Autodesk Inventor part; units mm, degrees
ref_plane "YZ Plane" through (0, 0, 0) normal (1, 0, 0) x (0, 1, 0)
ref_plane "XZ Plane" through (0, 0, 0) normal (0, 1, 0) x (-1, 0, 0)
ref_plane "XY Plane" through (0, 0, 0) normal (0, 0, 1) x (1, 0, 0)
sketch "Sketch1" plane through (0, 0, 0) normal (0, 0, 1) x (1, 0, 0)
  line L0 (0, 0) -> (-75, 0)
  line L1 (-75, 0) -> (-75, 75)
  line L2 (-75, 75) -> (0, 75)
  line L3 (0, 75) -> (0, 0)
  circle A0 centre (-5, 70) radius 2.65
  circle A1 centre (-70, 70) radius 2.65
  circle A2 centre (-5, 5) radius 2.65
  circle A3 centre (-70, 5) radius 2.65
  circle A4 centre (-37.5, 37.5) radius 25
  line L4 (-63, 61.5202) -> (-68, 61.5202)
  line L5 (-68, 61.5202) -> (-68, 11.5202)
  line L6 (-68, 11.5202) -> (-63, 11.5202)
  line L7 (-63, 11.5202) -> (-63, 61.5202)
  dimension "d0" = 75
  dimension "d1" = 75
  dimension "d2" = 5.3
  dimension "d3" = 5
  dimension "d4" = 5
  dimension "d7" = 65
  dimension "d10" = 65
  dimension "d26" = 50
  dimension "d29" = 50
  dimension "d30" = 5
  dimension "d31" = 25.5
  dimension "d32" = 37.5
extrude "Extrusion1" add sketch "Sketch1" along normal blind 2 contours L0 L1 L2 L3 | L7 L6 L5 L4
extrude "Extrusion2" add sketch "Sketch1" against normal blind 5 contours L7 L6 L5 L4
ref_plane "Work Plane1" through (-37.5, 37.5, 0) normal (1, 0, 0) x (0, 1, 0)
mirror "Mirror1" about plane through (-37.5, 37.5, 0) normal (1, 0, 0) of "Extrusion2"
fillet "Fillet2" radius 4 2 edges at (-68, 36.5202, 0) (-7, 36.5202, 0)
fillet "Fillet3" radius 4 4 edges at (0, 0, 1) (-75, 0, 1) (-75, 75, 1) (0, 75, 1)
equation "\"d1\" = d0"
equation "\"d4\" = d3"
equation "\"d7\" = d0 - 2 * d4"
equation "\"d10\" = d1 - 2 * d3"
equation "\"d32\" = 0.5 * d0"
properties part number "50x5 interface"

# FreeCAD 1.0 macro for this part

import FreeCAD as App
import Part
import Sketcher


def edges_at(feature, points):
    """Names of the edges that pass closest to the given points."""
    edges = feature.Shape.Edges
    near = lambda p: min(range(len(edges)), key=lambda i: edges[i].distToShape(Part.Vertex(*p))[0])
    return sorted({f"Edge{near(p) + 1}" for p in points})

doc = App.newDocument("Part")
body = doc.addObject("PartDesign::Body", "Body")

sketch1 = body.newObject("Sketcher::SketchObject", "Sketch")
sketch1.AttachmentSupport = (doc.getObject("XY_Plane"), [""])
sketch1.MapMode = "FlatFace"
sketch1.addGeometry(Part.LineSegment(App.Vector(-75, 0, 0), App.Vector(0, 0, 0)), False)
sketch1.addGeometry(Part.LineSegment(App.Vector(0, 0, 0), App.Vector(0, 75, 0)), False)
sketch1.addGeometry(Part.LineSegment(App.Vector(0, 75, 0), App.Vector(-75, 75, 0)), False)
sketch1.addGeometry(Part.LineSegment(App.Vector(-75, 75, 0), App.Vector(-75, 0, 0)), False)
sketch1.addGeometry(Part.Circle(App.Vector(-70, 5, 0), App.Vector(0, 0, 1), 2.6), False)
sketch1.addGeometry(Part.Circle(App.Vector(-5, 5, 0), App.Vector(0, 0, 1), 2.6), False)
sketch1.addGeometry(Part.Circle(App.Vector(-70, 70, 0), App.Vector(0, 0, 1), 2.6), False)
sketch1.addGeometry(Part.Circle(App.Vector(-37.5, 37.5, 0), App.Vector(0, 0, 1), 25), False)
sketch1.addGeometry(Part.Circle(App.Vector(-5, 70, 0), App.Vector(0, 0, 1), 2.6), False)
sketch1.addConstraint(Sketcher.Constraint("Coincident", 0, 2, 1, 1))
sketch1.addConstraint(Sketcher.Constraint("Coincident", 1, 2, 2, 1))
sketch1.addConstraint(Sketcher.Constraint("Coincident", 2, 2, 3, 1))
sketch1.addConstraint(Sketcher.Constraint("Coincident", 3, 2, 0, 1))
sketch1.addConstraint(Sketcher.Constraint("Horizontal", 0))
sketch1.addConstraint(Sketcher.Constraint("Vertical", 1))
sketch1.addConstraint(Sketcher.Constraint("Horizontal", 2))
sketch1.addConstraint(Sketcher.Constraint("Vertical", 3))
sketch1.addConstraint(Sketcher.Constraint("Coincident", 0, 2, -1, 1))
sketch1.addConstraint(Sketcher.Constraint("Equal", 4, 5))
sketch1.addConstraint(Sketcher.Constraint("Equal", 5, 6))
sketch1.addConstraint(Sketcher.Constraint("Equal", 6, 8))
sketch1.addConstraint(Sketcher.Constraint("Horizontal", 4, 3, 5, 3))
sketch1.addConstraint(Sketcher.Constraint("Horizontal", 6, 3, 8, 3))
sketch1.addConstraint(Sketcher.Constraint("Vertical", 4, 3, 6, 3))
sketch1.addConstraint(Sketcher.Constraint("Vertical", 5, 3, 8, 3))
sketch1.addConstraint(Sketcher.Constraint("Equal", 2, 1))
sketch1.addConstraint(Sketcher.Constraint("Diameter", 7, 50.0))
sketch1.addConstraint(Sketcher.Constraint("Diameter", 4, 5.3))
sketch1.addConstraint(Sketcher.Constraint("DistanceX", 0, 1, 0, 2, 75.0))
sketch1.addConstraint(Sketcher.Constraint("DistanceY", -1, 1, 4, 3, 5.0))
sketch1.addConstraint(Sketcher.Constraint("DistanceX", 5, 3, -1, 1, 5.0))
sketch1.addConstraint(Sketcher.Constraint("DistanceX", 4, 3, 5, 3, 65.0))
sketch1.addConstraint(Sketcher.Constraint("DistanceY", 4, 3, 6, 3, 65.0))
sketch1.addConstraint(Sketcher.Constraint("DistanceX", 7, 3, -1, 1, 37.5))
sketch1.addConstraint(Sketcher.Constraint("DistanceY", -1, 1, 7, 3, 37.5))
pad1 = body.newObject("PartDesign::Pad", "Pad")
pad1.Profile = sketch1
pad1.Length = 2

sketch2 = body.newObject("Sketcher::SketchObject", "Sketch001")
sketch2.AttachmentSupport = (doc.getObject("XY_Plane"), [""])
sketch2.MapMode = "FlatFace"
sketch2.addGeometry(Part.LineSegment(App.Vector(-63, 12, 0), App.Vector(-63, 62, 0)), False)
sketch2.addGeometry(Part.LineSegment(App.Vector(-63, 62, 0), App.Vector(-68, 62, 0)), False)
sketch2.addGeometry(Part.LineSegment(App.Vector(-68, 62, 0), App.Vector(-68, 12, 0)), False)
sketch2.addGeometry(Part.LineSegment(App.Vector(-68, 12, 0), App.Vector(-63, 12, 0)), False)
sketch2.addConstraint(Sketcher.Constraint("Coincident", 0, 2, 1, 1))
sketch2.addConstraint(Sketcher.Constraint("Coincident", 1, 2, 2, 1))
sketch2.addConstraint(Sketcher.Constraint("Coincident", 2, 2, 3, 1))
sketch2.addConstraint(Sketcher.Constraint("Coincident", 3, 2, 0, 1))
sketch2.addConstraint(Sketcher.Constraint("Vertical", 0))
sketch2.addConstraint(Sketcher.Constraint("Horizontal", 1))
sketch2.addConstraint(Sketcher.Constraint("Vertical", 2))
sketch2.addConstraint(Sketcher.Constraint("Horizontal", 3))
sketch2.addConstraint(Sketcher.Constraint("DistanceX", 1, 2, 1, 1, 5.0))
sketch2.addConstraint(Sketcher.Constraint("DistanceY", 0, 1, 0, 2, 50.0))
sketch2.addConstraint(Sketcher.Constraint("DistanceX", 0, 2, -1, 1, 63.0))
sketch2.addConstraint(Sketcher.Constraint("DistanceY", -1, 1, 0, 2, 61.5202))
pad2 = body.newObject("PartDesign::Pad", "Pad001")
pad2.Profile = sketch2
pad2.Length = 5
pad2.Reversed = True
doc.recompute()

datumplane = body.newObject("PartDesign::Plane", "DatumPlane")
datumplane.AttachmentSupport = (doc.getObject("YZ_Plane"), [""])
datumplane.MapMode = "FlatFace"
datumplane.AttachmentOffset = App.Placement(App.Vector(0, 0, -37.5), App.Rotation())
mirrored = body.newObject("PartDesign::Mirrored", "Mirrored")
mirrored.Originals = [pad2]
mirrored.MirrorPlane = (datumplane, [""])
body.Tip = mirrored
doc.recompute()

fillet = body.newObject("PartDesign::Fillet", "Fillet")
fillet.Base = (mirrored, edges_at(mirrored, [(-68, 36.52, 0), (-7, 36.52, 0)]))
fillet.Radius = 4
doc.recompute()

fillet2 = body.newObject("PartDesign::Fillet", "Fillet001")
fillet2.Base = (fillet, edges_at(fillet, [
    (0, 0, 1),
    (-75, 0, 1),
    (-75, 75, 1),
    (0, 75, 1),
]))
fillet2.Radius = 4

doc.recompute()
